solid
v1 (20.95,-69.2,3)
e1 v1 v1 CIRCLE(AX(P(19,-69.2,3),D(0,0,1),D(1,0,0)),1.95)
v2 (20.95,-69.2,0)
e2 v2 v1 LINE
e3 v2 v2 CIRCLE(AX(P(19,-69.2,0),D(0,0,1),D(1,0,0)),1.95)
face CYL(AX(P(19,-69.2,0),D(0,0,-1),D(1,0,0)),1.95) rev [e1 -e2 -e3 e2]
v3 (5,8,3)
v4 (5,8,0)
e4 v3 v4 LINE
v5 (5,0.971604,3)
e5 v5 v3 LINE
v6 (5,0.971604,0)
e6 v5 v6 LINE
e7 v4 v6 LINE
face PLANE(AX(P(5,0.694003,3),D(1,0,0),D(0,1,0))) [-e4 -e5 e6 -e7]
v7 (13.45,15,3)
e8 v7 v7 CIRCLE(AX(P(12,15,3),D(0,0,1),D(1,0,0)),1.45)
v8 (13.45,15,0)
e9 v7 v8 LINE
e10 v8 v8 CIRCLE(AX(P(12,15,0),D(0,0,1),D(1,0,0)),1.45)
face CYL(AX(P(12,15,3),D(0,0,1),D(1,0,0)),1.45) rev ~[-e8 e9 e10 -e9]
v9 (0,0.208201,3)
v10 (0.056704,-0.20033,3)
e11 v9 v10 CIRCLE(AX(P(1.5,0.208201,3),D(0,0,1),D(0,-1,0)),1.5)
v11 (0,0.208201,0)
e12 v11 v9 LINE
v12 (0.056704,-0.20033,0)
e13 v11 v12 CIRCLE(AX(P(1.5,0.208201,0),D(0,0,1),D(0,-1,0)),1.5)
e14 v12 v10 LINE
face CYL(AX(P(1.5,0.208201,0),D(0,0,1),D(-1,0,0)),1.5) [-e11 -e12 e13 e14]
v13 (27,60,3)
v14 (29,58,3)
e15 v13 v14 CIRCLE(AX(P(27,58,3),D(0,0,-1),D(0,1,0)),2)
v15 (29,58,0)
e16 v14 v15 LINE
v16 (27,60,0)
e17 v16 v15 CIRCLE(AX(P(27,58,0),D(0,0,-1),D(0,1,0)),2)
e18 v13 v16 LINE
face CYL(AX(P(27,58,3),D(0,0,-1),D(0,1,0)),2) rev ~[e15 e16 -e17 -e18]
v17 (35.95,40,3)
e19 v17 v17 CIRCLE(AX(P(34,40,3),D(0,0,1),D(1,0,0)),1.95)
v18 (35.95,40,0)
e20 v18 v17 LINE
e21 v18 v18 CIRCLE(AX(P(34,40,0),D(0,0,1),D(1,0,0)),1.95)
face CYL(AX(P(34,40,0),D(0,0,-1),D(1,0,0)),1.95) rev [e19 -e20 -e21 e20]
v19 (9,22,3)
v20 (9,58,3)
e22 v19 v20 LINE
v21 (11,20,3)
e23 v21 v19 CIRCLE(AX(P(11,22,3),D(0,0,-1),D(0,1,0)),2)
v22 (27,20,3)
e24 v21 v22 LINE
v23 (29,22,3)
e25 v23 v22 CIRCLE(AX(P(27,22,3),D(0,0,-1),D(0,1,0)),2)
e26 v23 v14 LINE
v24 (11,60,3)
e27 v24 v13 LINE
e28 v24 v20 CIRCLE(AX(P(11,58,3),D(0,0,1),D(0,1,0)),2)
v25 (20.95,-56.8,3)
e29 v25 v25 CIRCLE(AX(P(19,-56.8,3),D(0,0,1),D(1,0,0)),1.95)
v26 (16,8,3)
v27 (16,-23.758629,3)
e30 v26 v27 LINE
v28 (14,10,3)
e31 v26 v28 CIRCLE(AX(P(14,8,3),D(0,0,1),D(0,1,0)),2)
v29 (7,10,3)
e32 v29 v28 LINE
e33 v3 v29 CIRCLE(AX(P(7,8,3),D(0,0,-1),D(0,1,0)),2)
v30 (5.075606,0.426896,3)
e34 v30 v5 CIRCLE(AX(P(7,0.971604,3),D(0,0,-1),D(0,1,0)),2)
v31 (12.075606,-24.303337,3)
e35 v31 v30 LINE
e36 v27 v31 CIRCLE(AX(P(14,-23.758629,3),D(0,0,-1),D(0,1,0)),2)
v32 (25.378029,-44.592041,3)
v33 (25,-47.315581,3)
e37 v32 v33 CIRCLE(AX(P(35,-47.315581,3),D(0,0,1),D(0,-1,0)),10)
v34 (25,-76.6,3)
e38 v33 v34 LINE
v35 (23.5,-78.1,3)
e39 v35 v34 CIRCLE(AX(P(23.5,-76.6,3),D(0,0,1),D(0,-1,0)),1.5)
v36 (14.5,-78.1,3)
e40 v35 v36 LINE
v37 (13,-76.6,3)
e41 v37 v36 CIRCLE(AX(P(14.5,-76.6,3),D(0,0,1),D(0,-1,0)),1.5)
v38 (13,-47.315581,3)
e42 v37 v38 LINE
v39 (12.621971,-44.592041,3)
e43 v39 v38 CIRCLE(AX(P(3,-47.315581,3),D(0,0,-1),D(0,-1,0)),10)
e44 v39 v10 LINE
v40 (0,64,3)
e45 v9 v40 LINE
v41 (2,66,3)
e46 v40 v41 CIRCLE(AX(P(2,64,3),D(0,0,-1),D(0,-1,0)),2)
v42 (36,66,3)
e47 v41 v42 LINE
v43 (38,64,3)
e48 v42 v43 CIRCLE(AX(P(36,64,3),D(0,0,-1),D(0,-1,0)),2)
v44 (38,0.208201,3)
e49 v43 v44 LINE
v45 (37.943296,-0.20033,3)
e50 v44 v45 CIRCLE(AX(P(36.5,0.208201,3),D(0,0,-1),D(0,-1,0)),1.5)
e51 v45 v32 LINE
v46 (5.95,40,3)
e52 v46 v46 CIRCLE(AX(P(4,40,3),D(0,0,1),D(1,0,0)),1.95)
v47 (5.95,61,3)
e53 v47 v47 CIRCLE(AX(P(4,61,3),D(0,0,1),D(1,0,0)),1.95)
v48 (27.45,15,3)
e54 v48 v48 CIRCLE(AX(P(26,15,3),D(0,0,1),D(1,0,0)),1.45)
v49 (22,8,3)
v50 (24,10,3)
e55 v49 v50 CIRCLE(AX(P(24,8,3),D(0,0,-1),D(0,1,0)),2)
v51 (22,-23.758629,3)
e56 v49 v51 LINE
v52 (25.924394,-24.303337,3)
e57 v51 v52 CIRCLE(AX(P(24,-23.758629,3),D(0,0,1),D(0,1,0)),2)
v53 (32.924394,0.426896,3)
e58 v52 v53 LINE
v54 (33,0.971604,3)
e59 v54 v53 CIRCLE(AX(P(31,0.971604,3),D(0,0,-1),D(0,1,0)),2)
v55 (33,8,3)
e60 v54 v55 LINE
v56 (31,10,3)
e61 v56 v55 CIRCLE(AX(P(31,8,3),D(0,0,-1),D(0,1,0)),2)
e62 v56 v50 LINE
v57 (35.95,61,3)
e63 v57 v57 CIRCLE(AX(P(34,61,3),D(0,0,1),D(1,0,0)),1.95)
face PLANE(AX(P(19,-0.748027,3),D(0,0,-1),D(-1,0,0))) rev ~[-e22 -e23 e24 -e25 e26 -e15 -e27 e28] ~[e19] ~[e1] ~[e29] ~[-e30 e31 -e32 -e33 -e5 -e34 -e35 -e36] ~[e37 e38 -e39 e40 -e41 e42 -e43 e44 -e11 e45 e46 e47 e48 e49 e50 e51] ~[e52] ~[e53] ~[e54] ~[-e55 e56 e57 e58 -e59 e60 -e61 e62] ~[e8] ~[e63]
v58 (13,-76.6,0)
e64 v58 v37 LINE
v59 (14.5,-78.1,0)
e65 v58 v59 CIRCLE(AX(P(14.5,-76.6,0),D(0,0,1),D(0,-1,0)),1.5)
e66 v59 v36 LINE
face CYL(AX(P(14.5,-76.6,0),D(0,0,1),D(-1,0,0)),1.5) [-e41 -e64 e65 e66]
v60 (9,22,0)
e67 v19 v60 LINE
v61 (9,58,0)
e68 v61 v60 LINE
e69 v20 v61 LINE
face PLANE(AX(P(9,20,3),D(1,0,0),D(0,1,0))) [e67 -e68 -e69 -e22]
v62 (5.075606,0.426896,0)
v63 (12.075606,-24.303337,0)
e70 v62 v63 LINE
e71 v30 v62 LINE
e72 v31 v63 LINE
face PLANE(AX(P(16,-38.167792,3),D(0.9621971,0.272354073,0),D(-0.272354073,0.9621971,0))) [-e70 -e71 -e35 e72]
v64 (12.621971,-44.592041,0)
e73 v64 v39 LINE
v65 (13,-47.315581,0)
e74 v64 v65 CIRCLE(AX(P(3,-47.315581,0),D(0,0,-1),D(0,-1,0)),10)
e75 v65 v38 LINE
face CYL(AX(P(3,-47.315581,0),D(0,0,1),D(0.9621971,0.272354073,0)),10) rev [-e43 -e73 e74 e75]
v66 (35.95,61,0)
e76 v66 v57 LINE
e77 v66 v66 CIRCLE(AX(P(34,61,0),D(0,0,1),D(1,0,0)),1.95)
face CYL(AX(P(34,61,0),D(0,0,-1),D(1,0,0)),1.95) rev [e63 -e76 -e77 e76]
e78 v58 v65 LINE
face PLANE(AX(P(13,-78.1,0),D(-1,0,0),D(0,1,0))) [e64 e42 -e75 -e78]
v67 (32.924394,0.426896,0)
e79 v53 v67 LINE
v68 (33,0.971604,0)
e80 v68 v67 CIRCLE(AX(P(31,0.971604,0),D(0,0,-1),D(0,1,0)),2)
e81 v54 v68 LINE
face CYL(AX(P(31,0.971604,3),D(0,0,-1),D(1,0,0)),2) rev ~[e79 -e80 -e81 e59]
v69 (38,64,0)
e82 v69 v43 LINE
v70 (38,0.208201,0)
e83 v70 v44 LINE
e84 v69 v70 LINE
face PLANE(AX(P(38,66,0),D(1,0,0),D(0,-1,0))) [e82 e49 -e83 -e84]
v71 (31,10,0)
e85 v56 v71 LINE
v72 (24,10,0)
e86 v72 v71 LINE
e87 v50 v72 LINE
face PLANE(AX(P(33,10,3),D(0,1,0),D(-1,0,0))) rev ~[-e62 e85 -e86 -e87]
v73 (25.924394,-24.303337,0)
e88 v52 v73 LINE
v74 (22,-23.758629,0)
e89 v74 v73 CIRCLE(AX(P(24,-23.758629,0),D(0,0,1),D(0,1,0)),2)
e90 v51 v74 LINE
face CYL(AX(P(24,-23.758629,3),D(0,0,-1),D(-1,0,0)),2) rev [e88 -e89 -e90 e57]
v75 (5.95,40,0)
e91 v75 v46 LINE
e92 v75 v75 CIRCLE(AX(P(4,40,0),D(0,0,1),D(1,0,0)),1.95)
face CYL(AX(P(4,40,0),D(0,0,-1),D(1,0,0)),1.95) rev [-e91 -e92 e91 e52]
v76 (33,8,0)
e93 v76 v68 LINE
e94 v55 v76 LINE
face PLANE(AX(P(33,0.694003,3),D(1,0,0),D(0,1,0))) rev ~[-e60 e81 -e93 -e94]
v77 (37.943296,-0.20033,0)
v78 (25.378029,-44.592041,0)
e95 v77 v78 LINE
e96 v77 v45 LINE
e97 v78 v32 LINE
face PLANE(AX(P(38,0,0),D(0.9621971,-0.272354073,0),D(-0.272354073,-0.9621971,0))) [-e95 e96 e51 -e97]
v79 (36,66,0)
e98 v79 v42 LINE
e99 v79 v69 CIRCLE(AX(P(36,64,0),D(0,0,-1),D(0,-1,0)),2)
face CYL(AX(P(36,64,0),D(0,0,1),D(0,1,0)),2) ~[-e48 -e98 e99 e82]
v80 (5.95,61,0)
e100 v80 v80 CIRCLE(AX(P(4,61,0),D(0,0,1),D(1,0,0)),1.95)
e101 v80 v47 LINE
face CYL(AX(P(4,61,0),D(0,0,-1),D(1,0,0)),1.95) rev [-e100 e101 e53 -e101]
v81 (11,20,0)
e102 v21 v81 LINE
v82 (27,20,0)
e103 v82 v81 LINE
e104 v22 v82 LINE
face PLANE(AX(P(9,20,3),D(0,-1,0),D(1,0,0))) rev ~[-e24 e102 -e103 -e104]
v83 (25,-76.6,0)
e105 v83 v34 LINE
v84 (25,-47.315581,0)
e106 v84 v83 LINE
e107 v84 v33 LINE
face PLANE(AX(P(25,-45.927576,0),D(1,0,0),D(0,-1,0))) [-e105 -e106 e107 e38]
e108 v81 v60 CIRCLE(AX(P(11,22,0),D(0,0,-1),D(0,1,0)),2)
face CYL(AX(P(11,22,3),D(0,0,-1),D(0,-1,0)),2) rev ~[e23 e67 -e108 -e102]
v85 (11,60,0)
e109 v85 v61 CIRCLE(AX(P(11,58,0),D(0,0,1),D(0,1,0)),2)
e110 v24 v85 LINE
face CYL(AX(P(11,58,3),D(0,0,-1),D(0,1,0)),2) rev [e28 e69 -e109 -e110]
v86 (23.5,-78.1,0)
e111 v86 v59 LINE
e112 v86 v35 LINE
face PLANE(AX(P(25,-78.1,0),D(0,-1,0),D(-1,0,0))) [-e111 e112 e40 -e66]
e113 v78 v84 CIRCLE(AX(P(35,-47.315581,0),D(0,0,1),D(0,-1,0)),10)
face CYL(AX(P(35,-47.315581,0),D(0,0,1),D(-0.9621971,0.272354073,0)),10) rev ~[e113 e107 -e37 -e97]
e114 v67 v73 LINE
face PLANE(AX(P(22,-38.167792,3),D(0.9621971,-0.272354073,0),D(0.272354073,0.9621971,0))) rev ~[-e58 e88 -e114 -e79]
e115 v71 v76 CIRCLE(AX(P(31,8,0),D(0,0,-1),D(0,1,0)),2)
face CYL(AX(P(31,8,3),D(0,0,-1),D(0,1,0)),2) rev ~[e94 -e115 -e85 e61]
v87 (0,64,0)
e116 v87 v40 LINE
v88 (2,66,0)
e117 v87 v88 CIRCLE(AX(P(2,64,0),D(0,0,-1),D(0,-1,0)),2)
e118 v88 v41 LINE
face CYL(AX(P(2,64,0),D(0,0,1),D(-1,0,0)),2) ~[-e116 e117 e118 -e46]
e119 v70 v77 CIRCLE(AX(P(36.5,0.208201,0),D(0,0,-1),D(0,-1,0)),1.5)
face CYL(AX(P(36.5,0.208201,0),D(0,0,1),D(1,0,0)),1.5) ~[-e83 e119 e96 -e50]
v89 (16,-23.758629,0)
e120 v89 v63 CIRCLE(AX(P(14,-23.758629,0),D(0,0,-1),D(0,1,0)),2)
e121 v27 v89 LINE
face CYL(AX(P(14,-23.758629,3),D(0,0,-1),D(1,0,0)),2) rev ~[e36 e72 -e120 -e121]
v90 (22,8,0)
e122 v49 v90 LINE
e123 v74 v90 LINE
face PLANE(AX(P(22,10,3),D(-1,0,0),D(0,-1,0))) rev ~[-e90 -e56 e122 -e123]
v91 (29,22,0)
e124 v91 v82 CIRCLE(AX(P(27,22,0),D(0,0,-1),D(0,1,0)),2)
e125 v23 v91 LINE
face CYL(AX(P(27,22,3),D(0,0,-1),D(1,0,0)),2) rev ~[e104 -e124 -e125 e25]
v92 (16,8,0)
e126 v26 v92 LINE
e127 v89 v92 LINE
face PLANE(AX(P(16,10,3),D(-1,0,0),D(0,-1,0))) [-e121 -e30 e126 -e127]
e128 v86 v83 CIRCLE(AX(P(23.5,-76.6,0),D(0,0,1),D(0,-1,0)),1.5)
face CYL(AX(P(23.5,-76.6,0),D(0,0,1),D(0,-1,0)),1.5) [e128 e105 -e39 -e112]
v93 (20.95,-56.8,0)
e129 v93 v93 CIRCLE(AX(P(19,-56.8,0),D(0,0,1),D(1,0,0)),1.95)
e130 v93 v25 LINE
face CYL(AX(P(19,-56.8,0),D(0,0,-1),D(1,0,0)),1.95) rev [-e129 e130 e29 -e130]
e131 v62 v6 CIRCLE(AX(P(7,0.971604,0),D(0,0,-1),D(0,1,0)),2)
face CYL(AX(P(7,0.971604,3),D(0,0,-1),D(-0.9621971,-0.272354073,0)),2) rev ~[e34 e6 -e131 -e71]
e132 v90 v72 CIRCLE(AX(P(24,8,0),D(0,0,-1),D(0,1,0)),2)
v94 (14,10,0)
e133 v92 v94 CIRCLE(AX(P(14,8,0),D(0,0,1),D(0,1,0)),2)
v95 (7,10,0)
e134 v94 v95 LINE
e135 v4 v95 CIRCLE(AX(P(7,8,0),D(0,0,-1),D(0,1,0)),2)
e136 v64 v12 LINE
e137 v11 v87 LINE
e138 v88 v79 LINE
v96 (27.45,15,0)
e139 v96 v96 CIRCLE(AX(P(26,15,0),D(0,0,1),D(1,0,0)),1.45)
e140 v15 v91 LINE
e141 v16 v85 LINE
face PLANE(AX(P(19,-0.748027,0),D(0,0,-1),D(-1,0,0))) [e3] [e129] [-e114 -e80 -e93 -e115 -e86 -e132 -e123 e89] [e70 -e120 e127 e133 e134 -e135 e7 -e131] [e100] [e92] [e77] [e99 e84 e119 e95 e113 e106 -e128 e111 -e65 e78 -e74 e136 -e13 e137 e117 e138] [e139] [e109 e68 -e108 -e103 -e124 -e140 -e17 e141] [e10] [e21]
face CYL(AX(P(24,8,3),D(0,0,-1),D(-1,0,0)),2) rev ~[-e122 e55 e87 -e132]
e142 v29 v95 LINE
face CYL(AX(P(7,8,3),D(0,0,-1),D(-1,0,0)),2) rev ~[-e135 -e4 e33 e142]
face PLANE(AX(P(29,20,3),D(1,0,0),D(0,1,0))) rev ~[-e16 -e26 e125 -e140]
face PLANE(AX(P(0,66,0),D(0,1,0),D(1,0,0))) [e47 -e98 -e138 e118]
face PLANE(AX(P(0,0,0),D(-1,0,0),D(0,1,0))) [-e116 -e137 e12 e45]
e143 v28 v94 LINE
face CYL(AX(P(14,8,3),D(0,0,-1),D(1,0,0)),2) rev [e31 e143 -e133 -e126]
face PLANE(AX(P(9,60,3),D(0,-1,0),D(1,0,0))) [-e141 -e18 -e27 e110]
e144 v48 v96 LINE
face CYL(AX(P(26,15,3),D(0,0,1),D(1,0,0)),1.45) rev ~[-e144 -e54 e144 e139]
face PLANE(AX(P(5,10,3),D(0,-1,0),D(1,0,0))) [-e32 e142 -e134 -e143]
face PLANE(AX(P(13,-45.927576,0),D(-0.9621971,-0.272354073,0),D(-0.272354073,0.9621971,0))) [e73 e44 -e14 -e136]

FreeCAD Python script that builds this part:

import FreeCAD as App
import Part
import Sketcher
Q = App.Units.Quantity


def edges_at(feature, points):
    """Names of the edges that pass closest to the given points."""
    edges = feature.Shape.Edges
    near = lambda p: min(range(len(edges)), key=lambda i: edges[i].distToShape(Part.Vertex(*p))[0])
    return sorted({f"Edge{near(p) + 1}" for p in points})


def add_polygon(sketch, points):
    """Adds a closed chain of lines whose ends are joined by coincident constraints."""
    first, n = sketch.GeometryCount, len(points)
    for a, b in zip(points, points[1:] + points[:1]):
        sketch.addGeometry(Part.LineSegment(App.Vector(*a, 0), App.Vector(*b, 0)), False)
    for i in range(n):
        sketch.addConstraint(Sketcher.Constraint("Coincident", first + i, 2, first + (i + 1) % n, 1))

doc = App.newDocument("Part")
body = doc.addObject("PartDesign::Body", "Body")

# Sketch on XY plane
sketch1 = doc.addObject("Sketcher::SketchObject", "Sketch")
body.addObject(sketch1)
sketch1.AttachmentSupport = (doc.XY_Plane, [""])
sketch1.MapMode = "FlatFace"
add_polygon(sketch1, [(0, 66), (0, 0), (13, -45.927576), (13, -78.1), (25, -78.1), (25, -45.927576), (38, 0), (38, 66)])  # lines 0-7
sketch1.addGeometry(Part.Circle(App.Vector(19, -69.2, 0), App.Vector(0, 0, 1), 1.95), False)  # 8
sketch1.addGeometry(Part.Circle(App.Vector(19, -56.8, 0), App.Vector(0, 0, 1), 1.95), False)  # 9
sketch1.addGeometry(Part.Circle(App.Vector(34, 40, 0), App.Vector(0, 0, 1), 1.95), False)  # 10
sketch1.addGeometry(Part.Circle(App.Vector(34, 61, 0), App.Vector(0, 0, 1), 1.95), False)  # 11
sketch1.addGeometry(Part.Circle(App.Vector(4, 40, 0), App.Vector(0, 0, 1), 1.95), False)  # 12
sketch1.addGeometry(Part.Circle(App.Vector(4, 61, 0), App.Vector(0, 0, 1), 1.95), False)  # 13
sketch1.addConstraint([
    Sketcher.Constraint("Vertical", 0),
    Sketcher.Constraint("Vertical", 2),
    Sketcher.Constraint("Horizontal", 3),
    Sketcher.Constraint("Vertical", 4),
    Sketcher.Constraint("Vertical", 6),
    Sketcher.Constraint("Horizontal", 7),
    Sketcher.Constraint("Coincident", 0, 2, -1, 1),
    Sketcher.Constraint("Equal", 8, 9),
    Sketcher.Constraint("Equal", 9, 10),
    Sketcher.Constraint("Equal", 10, 11),
    Sketcher.Constraint("Equal", 11, 12),
    Sketcher.Constraint("Equal", 12, 13),
    Sketcher.Constraint("PointOnObject", 5, 2, -1),
    Sketcher.Constraint("Horizontal", 10, 3, 12, 3),
    Sketcher.Constraint("Horizontal", 11, 3, 13, 3),
    Sketcher.Constraint("Horizontal", 1, 2, 4, 2),
    Sketcher.Constraint("Vertical", 8, 3, 9, 3),
    Sketcher.Constraint("Vertical", 10, 3, 11, 3),
    Sketcher.Constraint("Vertical", 12, 3, 13, 3),
    Sketcher.Constraint("Equal", 1, 5),
    Sketcher.Constraint("Diameter", 8, Q("3.9 mm")),
    Sketcher.Constraint("DistanceX", 3, 1, 3, 2, Q("12 mm")),
    Sketcher.Constraint("DistanceX", 7, 2, 7, 1, Q("38 mm")),
    Sketcher.Constraint("DistanceY", 0, 2, 0, 1, Q("66 mm")),
    Sketcher.Constraint("DistanceX", -1, 1, 8, 3, Q("19 mm")),
    Sketcher.Constraint("DistanceX", -1, 1, 10, 3, Q("34 mm")),
    Sketcher.Constraint("DistanceY", -1, 1, 10, 3, Q("40 mm")),
    Sketcher.Constraint("DistanceY", -1, 1, 11, 3, Q("61 mm")),
    Sketcher.Constraint("DistanceX", -1, 1, 12, 3, Q("4 mm")),
    Sketcher.Constraint("DistanceY", 8, 3, -1, 1, Q("69.2 mm")),
    Sketcher.Constraint("DistanceY", 9, 3, -1, 1, Q("56.8 mm")),
    Sketcher.Constraint("DistanceY", 2, 2, -1, 1, Q("78.1 mm")),
    Sketcher.Constraint("DistanceY", 2, 2, 2, 1, Q("32.172424 mm")),
])
pad1 = doc.addObject("PartDesign::Pad", "Pad")
body.addObject(pad1)
pad1.Profile = sketch1
pad1.Length = 3

# Sketch on XY plane
sketch2 = doc.addObject("Sketcher::SketchObject", "Sketch001")
body.addObject(sketch2)
sketch2.AttachmentSupport = (doc.XY_Plane, [""])
sketch2.MapMode = "FlatFace"
sketch2.AttachmentOffset = App.Placement(App.Vector(0, 0, 3), App.Rotation())
sketch2.addGeometry(Part.Circle(App.Vector(12, 15, 0), App.Vector(0, 0, 1), 1.45), False)  # 0
sketch2.addGeometry(Part.Circle(App.Vector(26, 15, 0), App.Vector(0, 0, 1), 1.45), False)  # 1
add_polygon(sketch2, [(16, 10), (5, 10), (5, 0.694003), (16, -38.167792)])  # lines 2-5
add_polygon(sketch2, [(9, 60), (9, 20), (29, 20), (29, 60)])  # lines 6-9
add_polygon(sketch2, [(22, 10), (22, -38.167792), (33, 0.694003), (33, 10)])  # lines 10-13
sketch2.addConstraint([
    Sketcher.Constraint("Horizontal", 2),
    Sketcher.Constraint("Vertical", 3),
    Sketcher.Constraint("Vertical", 5),
    Sketcher.Constraint("Vertical", 6),
    Sketcher.Constraint("Horizontal", 7),
    Sketcher.Constraint("Vertical", 8),
    Sketcher.Constraint("Horizontal", 9),
    Sketcher.Constraint("Vertical", 10),
    Sketcher.Constraint("Vertical", 12),
    Sketcher.Constraint("Horizontal", 13),
    Sketcher.Constraint("Equal", 0, 1),
    Sketcher.Constraint("Horizontal", 0, 3, 1, 3),
    Sketcher.Constraint("Horizontal", 4, 2, 10, 2),
    Sketcher.Constraint("Horizontal", 3, 2, 11, 2),
    Sketcher.Constraint("Horizontal", 5, 2, 12, 2),
    Sketcher.Constraint("Equal", 2, 13),
    Sketcher.Constraint("Diameter", 0, Q("2.9 mm")),
    Sketcher.Constraint("DistanceX", 2, 2, 2, 1, Q("11 mm")),
    Sketcher.Constraint("DistanceX", 7, 1, 7, 2, Q("20 mm")),
    Sketcher.Constraint("DistanceY", 6, 2, 6, 1, Q("40 mm")),
    Sketcher.Constraint("DistanceX", -1, 1, 0, 3, Q("12 mm")),
    Sketcher.Constraint("DistanceY", -1, 1, 0, 3, Q("15 mm")),
    Sketcher.Constraint("DistanceX", -1, 1, 1, 3, Q("26 mm")),
    Sketcher.Constraint("DistanceX", -1, 1, 2, 2, Q("5 mm")),
    Sketcher.Constraint("DistanceY", -1, 1, 2, 2, Q("10 mm")),
    Sketcher.Constraint("DistanceX", -1, 1, 6, 2, Q("9 mm")),
    Sketcher.Constraint("DistanceY", -1, 1, 6, 2, Q("20 mm")),
    Sketcher.Constraint("DistanceX", -1, 1, 10, 2, Q("22 mm")),
    Sketcher.Constraint("Distance", 4, Q("40.388601 mm")),
    Sketcher.Constraint("DistanceY", 5, 1, 5, 2, Q("48.167792 mm")),
])
pocket1 = doc.addObject("PartDesign::Pocket", "Pocket")
body.addObject(pocket1)
pocket1.Profile = sketch2
pocket1.Length = 10
doc.recompute()

fillet = doc.addObject("PartDesign::Fillet", "Fillet")
body.addObject(fillet)
fillet.Base = (pocket1, edges_at(pocket1, [
    (0, 0, 1.5),
    (38, 0, 1.5),
    (25, -78.1, 1.5),
    (13, -78.1, 1.5),
]))
fillet.Radius = 1.5
doc.recompute()

fillet2 = doc.addObject("PartDesign::Fillet", "Fillet001")
body.addObject(fillet2)
fillet2.Base = (fillet, edges_at(fillet, [(25, -45.928, 1.5), (13, -45.928, 1.5)]))
fillet2.Radius = 10
doc.recompute()

fillet3 = doc.addObject("PartDesign::Fillet", "Fillet002")
body.addObject(fillet3)
fillet3.Base = (fillet2, edges_at(fillet2, [
    (0, 66, 1.5),
    (38, 66, 1.5),
    (9, 20, 1.5),
    (9, 60, 1.5),
    (29, 60, 1.5),
    (29, 20, 1.5),
    (5, 0.694, 1.5),
    (5, 10, 1.5),
    (16, 10, 1.5),
    (16, -38.168, 1.5),
    (22, 10, 1.5),
    (33, 10, 1.5),
    (33, 0.694, 1.5),
    (22, -38.168, 1.5),
]))
fillet3.Radius = 2

doc.recompute()
